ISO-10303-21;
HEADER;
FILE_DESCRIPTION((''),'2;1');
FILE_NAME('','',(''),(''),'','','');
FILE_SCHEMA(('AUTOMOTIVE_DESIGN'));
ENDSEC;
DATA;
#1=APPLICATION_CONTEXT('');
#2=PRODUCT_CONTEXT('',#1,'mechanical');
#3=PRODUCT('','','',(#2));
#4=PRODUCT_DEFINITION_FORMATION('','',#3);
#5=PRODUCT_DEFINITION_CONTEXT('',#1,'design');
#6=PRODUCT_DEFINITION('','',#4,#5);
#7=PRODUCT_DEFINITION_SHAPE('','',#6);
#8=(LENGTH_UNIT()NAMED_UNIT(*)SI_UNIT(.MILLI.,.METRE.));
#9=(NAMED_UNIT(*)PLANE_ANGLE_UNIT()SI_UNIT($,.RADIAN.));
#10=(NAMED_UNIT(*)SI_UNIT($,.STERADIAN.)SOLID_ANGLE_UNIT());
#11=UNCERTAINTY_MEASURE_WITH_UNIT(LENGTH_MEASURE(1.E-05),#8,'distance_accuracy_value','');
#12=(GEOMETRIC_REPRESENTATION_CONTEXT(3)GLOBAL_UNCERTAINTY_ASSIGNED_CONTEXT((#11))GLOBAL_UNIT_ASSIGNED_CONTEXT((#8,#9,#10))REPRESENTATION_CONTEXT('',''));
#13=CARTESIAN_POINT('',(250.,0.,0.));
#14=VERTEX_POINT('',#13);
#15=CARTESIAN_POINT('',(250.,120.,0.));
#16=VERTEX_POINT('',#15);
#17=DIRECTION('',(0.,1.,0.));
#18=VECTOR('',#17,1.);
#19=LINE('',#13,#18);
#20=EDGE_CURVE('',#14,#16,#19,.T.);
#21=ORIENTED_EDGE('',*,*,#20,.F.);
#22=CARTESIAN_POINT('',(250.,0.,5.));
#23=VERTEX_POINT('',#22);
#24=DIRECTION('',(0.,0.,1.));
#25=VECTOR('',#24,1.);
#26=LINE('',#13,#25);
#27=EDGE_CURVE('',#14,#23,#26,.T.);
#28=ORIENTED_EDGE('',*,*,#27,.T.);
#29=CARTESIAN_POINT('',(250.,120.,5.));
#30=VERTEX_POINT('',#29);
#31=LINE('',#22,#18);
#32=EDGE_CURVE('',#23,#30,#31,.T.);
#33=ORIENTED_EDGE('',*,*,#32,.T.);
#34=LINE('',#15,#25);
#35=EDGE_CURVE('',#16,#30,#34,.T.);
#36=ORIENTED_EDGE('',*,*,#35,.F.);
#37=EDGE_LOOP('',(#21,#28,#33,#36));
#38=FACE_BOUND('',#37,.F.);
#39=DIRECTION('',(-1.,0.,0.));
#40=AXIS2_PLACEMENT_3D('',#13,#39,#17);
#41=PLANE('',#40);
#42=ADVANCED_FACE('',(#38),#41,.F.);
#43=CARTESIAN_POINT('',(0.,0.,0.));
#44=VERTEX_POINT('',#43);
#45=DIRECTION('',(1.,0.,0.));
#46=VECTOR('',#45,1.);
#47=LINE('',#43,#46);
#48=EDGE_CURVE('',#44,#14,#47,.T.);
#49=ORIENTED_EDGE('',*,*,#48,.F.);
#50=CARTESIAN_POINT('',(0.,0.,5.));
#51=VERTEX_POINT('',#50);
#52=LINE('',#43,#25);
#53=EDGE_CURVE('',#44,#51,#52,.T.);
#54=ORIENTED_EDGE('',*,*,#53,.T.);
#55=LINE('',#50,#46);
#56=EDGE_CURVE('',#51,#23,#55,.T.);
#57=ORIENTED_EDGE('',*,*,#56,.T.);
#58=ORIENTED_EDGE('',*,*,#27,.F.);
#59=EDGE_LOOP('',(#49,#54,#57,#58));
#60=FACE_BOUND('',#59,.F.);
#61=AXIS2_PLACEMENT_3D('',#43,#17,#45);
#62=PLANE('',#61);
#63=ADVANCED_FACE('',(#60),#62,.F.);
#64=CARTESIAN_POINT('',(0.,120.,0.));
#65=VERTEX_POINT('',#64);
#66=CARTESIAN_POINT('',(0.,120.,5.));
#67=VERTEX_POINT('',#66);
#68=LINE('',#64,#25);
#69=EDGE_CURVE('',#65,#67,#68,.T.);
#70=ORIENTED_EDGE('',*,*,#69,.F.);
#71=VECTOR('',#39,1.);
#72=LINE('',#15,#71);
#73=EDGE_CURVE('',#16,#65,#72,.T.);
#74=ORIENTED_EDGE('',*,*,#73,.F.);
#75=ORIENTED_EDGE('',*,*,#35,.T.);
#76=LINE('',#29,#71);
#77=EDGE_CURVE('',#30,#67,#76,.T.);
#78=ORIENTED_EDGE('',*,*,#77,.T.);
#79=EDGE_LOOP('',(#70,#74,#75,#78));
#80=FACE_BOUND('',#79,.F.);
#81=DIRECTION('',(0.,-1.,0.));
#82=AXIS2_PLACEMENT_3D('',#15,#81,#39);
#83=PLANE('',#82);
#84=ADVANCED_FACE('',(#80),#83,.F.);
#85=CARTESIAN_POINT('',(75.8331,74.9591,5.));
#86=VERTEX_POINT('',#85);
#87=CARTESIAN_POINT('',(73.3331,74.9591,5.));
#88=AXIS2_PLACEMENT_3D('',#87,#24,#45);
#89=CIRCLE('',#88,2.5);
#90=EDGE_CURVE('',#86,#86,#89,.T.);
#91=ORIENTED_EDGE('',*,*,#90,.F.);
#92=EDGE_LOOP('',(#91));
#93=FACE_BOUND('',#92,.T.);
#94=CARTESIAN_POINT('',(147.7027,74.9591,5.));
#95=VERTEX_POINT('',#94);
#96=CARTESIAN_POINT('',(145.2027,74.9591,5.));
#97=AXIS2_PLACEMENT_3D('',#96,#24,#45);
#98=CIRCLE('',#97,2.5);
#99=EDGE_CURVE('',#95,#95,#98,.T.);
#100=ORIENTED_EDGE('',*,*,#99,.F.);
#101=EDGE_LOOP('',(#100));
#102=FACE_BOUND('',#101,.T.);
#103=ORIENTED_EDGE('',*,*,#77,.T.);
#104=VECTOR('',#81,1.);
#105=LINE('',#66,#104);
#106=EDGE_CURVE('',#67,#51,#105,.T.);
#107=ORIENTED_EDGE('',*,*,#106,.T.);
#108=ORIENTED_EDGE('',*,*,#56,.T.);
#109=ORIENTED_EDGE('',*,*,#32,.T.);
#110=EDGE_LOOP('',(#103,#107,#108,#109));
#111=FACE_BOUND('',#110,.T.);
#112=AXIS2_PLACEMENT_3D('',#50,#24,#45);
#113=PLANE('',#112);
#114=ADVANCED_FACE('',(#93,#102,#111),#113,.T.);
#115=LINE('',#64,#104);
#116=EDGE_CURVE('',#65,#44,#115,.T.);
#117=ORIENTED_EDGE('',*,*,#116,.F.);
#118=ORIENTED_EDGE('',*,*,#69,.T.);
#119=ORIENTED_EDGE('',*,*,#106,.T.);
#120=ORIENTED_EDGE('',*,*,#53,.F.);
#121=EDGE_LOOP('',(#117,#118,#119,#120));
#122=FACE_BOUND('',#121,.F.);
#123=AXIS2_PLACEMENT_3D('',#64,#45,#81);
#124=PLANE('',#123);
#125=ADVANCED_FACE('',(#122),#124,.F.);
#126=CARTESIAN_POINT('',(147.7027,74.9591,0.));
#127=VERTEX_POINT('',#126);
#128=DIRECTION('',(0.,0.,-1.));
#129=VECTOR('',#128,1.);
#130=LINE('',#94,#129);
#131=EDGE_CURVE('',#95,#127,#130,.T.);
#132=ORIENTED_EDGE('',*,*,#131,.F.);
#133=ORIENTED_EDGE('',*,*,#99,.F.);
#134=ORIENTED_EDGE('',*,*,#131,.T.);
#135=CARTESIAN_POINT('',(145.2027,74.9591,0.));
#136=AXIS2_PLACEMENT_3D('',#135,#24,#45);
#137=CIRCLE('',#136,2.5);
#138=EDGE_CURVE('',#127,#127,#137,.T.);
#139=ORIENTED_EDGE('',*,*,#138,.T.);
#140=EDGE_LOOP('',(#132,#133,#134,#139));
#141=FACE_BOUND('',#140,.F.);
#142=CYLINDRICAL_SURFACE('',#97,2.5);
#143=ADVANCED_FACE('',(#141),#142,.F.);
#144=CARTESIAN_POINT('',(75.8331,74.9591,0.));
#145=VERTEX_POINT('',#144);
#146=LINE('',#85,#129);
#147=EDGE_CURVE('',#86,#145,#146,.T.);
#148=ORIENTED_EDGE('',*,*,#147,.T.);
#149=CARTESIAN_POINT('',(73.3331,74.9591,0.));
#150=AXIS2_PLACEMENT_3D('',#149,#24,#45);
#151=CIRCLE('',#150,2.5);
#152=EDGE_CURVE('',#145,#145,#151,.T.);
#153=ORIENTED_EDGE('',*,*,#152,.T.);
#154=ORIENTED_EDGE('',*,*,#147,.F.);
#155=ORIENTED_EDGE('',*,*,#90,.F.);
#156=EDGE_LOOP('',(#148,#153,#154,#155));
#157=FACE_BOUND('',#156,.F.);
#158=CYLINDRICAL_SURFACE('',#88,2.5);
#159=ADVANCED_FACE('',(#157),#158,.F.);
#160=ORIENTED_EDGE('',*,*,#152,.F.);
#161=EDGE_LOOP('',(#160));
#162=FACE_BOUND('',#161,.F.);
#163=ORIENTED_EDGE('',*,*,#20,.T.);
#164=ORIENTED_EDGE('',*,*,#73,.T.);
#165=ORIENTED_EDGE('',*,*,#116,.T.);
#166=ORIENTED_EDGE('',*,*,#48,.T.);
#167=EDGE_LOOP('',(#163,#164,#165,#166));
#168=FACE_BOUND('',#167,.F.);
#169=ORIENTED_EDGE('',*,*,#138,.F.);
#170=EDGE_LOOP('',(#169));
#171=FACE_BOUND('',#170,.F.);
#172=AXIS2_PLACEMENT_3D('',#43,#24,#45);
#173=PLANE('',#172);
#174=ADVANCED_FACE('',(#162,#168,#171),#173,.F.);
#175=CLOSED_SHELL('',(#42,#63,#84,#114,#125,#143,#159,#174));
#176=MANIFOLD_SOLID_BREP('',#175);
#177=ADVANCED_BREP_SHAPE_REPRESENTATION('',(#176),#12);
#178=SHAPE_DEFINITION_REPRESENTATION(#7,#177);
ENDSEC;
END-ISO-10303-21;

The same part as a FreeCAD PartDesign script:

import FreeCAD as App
import Part
import Sketcher

V = App.Vector
Q = App.Units.Quantity

doc = App.newDocument("Part")
body = doc.addObject("PartDesign::Body", "Body")

# Sketch on XY plane
sketch1 = doc.addObject("Sketcher::SketchObject", "Sketch")
body.addObject(sketch1)
sketch1.AttachmentSupport = (doc.XY_Plane, [""])
sketch1.MapMode = "FlatFace"
sketch1.addGeometry([
    Part.LineSegment(V(0, 120, 0), V(0, 0, 0)),
    Part.LineSegment(V(0, 0, 0), V(250, 0, 0)),
    Part.LineSegment(V(250, 0, 0), V(250, 120, 0)),
    Part.LineSegment(V(250, 120, 0), V(0, 120, 0)),
], False)
sketch1.addConstraint([
    Sketcher.Constraint("Coincident", 0, 2, 1, 1),
    Sketcher.Constraint("Coincident", 1, 2, 2, 1),
    Sketcher.Constraint("Coincident", 2, 2, 3, 1),
    Sketcher.Constraint("Coincident", 3, 2, 0, 1),
    Sketcher.Constraint("Vertical", 0),
    Sketcher.Constraint("Horizontal", 1),
    Sketcher.Constraint("Vertical", 2),
    Sketcher.Constraint("Horizontal", 3),
    Sketcher.Constraint("Coincident", 0, 2, -1, 1),
    Sketcher.Constraint("DistanceX", 1, 1, 1, 2, Q("250 mm")),
    Sketcher.Constraint("DistanceY", 0, 2, 0, 1, Q("120 mm")),
])
pad1 = doc.addObject("PartDesign::Pad", "Pad")
body.addObject(pad1)
pad1.Profile = sketch1
pad1.Length = 5

# Sketch on XY plane
sketch2 = doc.addObject("Sketcher::SketchObject", "Sketch001")
body.addObject(sketch2)
sketch2.AttachmentSupport = (doc.XY_Plane, [""])
sketch2.MapMode = "FlatFace"
sketch2.AttachmentOffset = App.Placement(V(0, 0, 5), App.Rotation())
sketch2.addGeometry([
    Part.Circle(V(73.3331, 74.9591, 0), V(0, 0, 1), 2.5),
    Part.Circle(V(145.2027, 74.9591, 0), V(0, 0, 1), 2.5),
], False)
sketch2.addConstraint([
    Sketcher.Constraint("Equal", 0, 1),
    Sketcher.Constraint("Horizontal", 0, 3, 1, 3),
    Sketcher.Constraint("Diameter", 0, Q("5 mm")),
    Sketcher.Constraint("DistanceX", -1, 1, 0, 3, Q("73.333 mm")),
    Sketcher.Constraint("DistanceY", -1, 1, 0, 3, Q("74.959 mm")),
    Sketcher.Constraint("DistanceX", -1, 1, 1, 3, Q("145.2027 mm")),
])
pocket1 = doc.addObject("PartDesign::Pocket", "Pocket")
body.addObject(pocket1)
pocket1.Profile = sketch2
pocket1.Length = 5

doc.recompute()
